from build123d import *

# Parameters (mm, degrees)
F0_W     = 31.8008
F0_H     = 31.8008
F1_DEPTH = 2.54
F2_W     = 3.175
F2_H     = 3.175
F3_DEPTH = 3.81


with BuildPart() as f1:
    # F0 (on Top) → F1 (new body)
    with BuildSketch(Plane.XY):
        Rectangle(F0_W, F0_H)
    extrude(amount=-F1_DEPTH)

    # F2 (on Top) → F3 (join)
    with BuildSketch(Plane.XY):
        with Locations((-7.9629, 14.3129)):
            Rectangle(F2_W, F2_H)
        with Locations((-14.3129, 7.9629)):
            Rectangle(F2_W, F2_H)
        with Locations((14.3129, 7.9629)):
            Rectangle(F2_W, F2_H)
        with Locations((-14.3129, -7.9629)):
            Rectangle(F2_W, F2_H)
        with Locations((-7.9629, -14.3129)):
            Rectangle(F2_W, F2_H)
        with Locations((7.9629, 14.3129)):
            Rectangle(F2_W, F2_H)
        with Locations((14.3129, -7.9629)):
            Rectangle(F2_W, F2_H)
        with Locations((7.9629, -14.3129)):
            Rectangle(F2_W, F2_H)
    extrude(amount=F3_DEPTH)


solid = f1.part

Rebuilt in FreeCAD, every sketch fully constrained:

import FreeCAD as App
import Part
import Sketcher
Q = App.Units.Quantity


def add_polygon(sketch, points):
    """Adds a closed chain of lines whose ends are joined by coincident constraints."""
    first, n = sketch.GeometryCount, len(points)
    for a, b in zip(points, points[1:] + points[:1]):
        sketch.addGeometry(Part.LineSegment(App.Vector(*a, 0), App.Vector(*b, 0)), False)
    for i in range(n):
        sketch.addConstraint(Sketcher.Constraint("Coincident", first + i, 2, first + (i + 1) % n, 1))

doc = App.newDocument("Part")
params = doc.addObject("Spreadsheet::Sheet", "Params")
for row, (alias, value) in enumerate([
    ("sketch1_width", "1.252 in"),
    ("pad1_length", "0.1 in"),
    ("sketch2_width", "0.125 in"),
    ("pad2_length", "0.15 in"),
], start=1):
    params.set(f"A{row}", alias)
    params.set(f"B{row}", "=" + value)
    params.setAlias(f"B{row}", alias)

body = doc.addObject("PartDesign::Body", "Body")

# Sketch on XY plane
sketch1 = body.newObject("Sketcher::SketchObject", "Sketch")
sketch1.AttachmentSupport = (doc.getObject("XY_Plane"), [""])
sketch1.MapMode = "FlatFace"
add_polygon(sketch1, [(-15.9004, 15.9004), (-15.9004, -15.9004), (15.9004, -15.9004), (15.9004, 15.9004)])  # lines 0-3
sketch1.addConstraint(Sketcher.Constraint("Vertical", 0))
sketch1.addConstraint(Sketcher.Constraint("Horizontal", 1))
sketch1.addConstraint(Sketcher.Constraint("Vertical", 2))
sketch1.addConstraint(Sketcher.Constraint("Horizontal", 3))
sketch1.addConstraint(Sketcher.Constraint("Symmetric", 0, 2, 2, 2, -1, 1))
sketch1.addConstraint(Sketcher.Constraint("Equal", 3, 0))
sketch1.addConstraint(Sketcher.Constraint("DistanceX", 1, 1, 1, 2, Q("1.252 in")))
sketch1.setExpression("Constraints[10]", "Params.sketch1_width")
pad1 = body.newObject("PartDesign::Pad", "Pad")
pad1.Profile = sketch1
pad1.setExpression("Length", "Params.pad1_length")
pad1.Reversed = True

# Sketch on XY plane
sketch2 = body.newObject("Sketcher::SketchObject", "Sketch001")
sketch2.AttachmentSupport = (doc.getObject("XY_Plane"), [""])
sketch2.MapMode = "FlatFace"
add_polygon(sketch2, [(-9.5504, 15.9004), (-9.5504, 12.7254), (-6.3754, 12.7254), (-6.3754, 15.9004)])  # lines 0-3
add_polygon(sketch2, [(-15.9004, 9.5504), (-15.9004, 6.3754), (-12.7254, 6.3754), (-12.7254, 9.5504)])  # lines 4-7
add_polygon(sketch2, [(12.7254, 9.5504), (12.7254, 6.3754), (15.9004, 6.3754), (15.9004, 9.5504)])  # lines 8-11
add_polygon(sketch2, [(-15.9004, -6.3754), (-15.9004, -9.5504), (-12.7254, -9.5504), (-12.7254, -6.3754)])  # lines 12-15
add_polygon(sketch2, [(-9.5504, -12.7254), (-9.5504, -15.9004), (-6.3754, -15.9004), (-6.3754, -12.7254)])  # lines 16-19
add_polygon(sketch2, [(6.3754, 15.9004), (6.3754, 12.7254), (9.5504, 12.7254), (9.5504, 15.9004)])  # lines 20-23
add_polygon(sketch2, [(12.7254, -6.3754), (12.7254, -9.5504), (15.9004, -9.5504), (15.9004, -6.3754)])  # lines 24-27
add_polygon(sketch2, [(6.3754, -12.7254), (6.3754, -15.9004), (9.5504, -15.9004), (9.5504, -12.7254)])  # lines 28-31
sketch2.addConstraint(Sketcher.Constraint("Vertical", 0))
sketch2.addConstraint(Sketcher.Constraint("Horizontal", 1))
sketch2.addConstraint(Sketcher.Constraint("Vertical", 2))
sketch2.addConstraint(Sketcher.Constraint("Horizontal", 3))
sketch2.addConstraint(Sketcher.Constraint("Vertical", 4))
sketch2.addConstraint(Sketcher.Constraint("Horizontal", 5))
sketch2.addConstraint(Sketcher.Constraint("Vertical", 6))
sketch2.addConstraint(Sketcher.Constraint("Horizontal", 7))
sketch2.addConstraint(Sketcher.Constraint("Vertical", 8))
sketch2.addConstraint(Sketcher.Constraint("Horizontal", 9))
sketch2.addConstraint(Sketcher.Constraint("Vertical", 10))
sketch2.addConstraint(Sketcher.Constraint("Horizontal", 11))
sketch2.addConstraint(Sketcher.Constraint("Vertical", 12))
sketch2.addConstraint(Sketcher.Constraint("Horizontal", 13))
sketch2.addConstraint(Sketcher.Constraint("Vertical", 14))
sketch2.addConstraint(Sketcher.Constraint("Horizontal", 15))
sketch2.addConstraint(Sketcher.Constraint("Vertical", 16))
sketch2.addConstraint(Sketcher.Constraint("Horizontal", 17))
sketch2.addConstraint(Sketcher.Constraint("Vertical", 18))
sketch2.addConstraint(Sketcher.Constraint("Horizontal", 19))
sketch2.addConstraint(Sketcher.Constraint("Vertical", 20))
sketch2.addConstraint(Sketcher.Constraint("Horizontal", 21))
sketch2.addConstraint(Sketcher.Constraint("Vertical", 22))
sketch2.addConstraint(Sketcher.Constraint("Horizontal", 23))
sketch2.addConstraint(Sketcher.Constraint("Vertical", 24))
sketch2.addConstraint(Sketcher.Constraint("Horizontal", 25))
sketch2.addConstraint(Sketcher.Constraint("Vertical", 26))
sketch2.addConstraint(Sketcher.Constraint("Horizontal", 27))
sketch2.addConstraint(Sketcher.Constraint("Vertical", 28))
sketch2.addConstraint(Sketcher.Constraint("Horizontal", 29))
sketch2.addConstraint(Sketcher.Constraint("Vertical", 30))
sketch2.addConstraint(Sketcher.Constraint("Horizontal", 31))
sketch2.addConstraint(Sketcher.Constraint("Symmetric", 10, 2, 12, 2, -1, 1))
sketch2.addConstraint(Sketcher.Constraint("Symmetric", 8, 2, 14, 2, -1, 1))
sketch2.addConstraint(Sketcher.Constraint("Symmetric", 18, 2, 20, 2, -1, 1))
sketch2.addConstraint(Sketcher.Constraint("Symmetric", 16, 2, 22, 2, -1, 1))
sketch2.addConstraint(Sketcher.Constraint("Symmetric", 6, 2, 24, 2, -1, 1))
sketch2.addConstraint(Sketcher.Constraint("Symmetric", 4, 2, 26, 2, -1, 1))
sketch2.addConstraint(Sketcher.Constraint("Symmetric", 2, 2, 28, 2, -1, 1))
sketch2.addConstraint(Sketcher.Constraint("Symmetric", 0, 2, 30, 2, -1, 1))
sketch2.addConstraint(Sketcher.Constraint("Symmetric", 5, 2, 8, 2, -2))
sketch2.addConstraint(Sketcher.Constraint("Symmetric", 7, 2, 10, 2, -2))
sketch2.addConstraint(Sketcher.Constraint("Symmetric", 1, 2, 20, 2, -2))
sketch2.addConstraint(Sketcher.Constraint("Symmetric", 3, 2, 22, 2, -2))
sketch2.addConstraint(Sketcher.Constraint("Equal", 3, 5))
sketch2.addConstraint(Sketcher.Constraint("Equal", 31, 0))
sketch2.addConstraint(Sketcher.Constraint("Equal", 2, 4))
sketch2.addConstraint(Sketcher.Constraint("DistanceX", 1, 1, 1, 2, Q("0.125 in")))
sketch2.addConstraint(Sketcher.Constraint("DistanceX", 4, 2, 0, 2, Q("0.25 in")))
sketch2.addConstraint(Sketcher.Constraint("DistanceY", 4, 2, 0, 2, Q("0.25 in")))
sketch2.addConstraint(Sketcher.Constraint("DistanceX", 0, 2, -1, 1, Q("0.376 in")))
sketch2.addConstraint(Sketcher.Constraint("DistanceY", -1, 1, 0, 2, Q("0.501 in")))
sketch2.setExpression("Constraints[79]", "Params.sketch2_width")
pad2 = body.newObject("PartDesign::Pad", "Pad001")
pad2.Profile = sketch2
pad2.setExpression("Length", "Params.pad2_length")

doc.recompute()
